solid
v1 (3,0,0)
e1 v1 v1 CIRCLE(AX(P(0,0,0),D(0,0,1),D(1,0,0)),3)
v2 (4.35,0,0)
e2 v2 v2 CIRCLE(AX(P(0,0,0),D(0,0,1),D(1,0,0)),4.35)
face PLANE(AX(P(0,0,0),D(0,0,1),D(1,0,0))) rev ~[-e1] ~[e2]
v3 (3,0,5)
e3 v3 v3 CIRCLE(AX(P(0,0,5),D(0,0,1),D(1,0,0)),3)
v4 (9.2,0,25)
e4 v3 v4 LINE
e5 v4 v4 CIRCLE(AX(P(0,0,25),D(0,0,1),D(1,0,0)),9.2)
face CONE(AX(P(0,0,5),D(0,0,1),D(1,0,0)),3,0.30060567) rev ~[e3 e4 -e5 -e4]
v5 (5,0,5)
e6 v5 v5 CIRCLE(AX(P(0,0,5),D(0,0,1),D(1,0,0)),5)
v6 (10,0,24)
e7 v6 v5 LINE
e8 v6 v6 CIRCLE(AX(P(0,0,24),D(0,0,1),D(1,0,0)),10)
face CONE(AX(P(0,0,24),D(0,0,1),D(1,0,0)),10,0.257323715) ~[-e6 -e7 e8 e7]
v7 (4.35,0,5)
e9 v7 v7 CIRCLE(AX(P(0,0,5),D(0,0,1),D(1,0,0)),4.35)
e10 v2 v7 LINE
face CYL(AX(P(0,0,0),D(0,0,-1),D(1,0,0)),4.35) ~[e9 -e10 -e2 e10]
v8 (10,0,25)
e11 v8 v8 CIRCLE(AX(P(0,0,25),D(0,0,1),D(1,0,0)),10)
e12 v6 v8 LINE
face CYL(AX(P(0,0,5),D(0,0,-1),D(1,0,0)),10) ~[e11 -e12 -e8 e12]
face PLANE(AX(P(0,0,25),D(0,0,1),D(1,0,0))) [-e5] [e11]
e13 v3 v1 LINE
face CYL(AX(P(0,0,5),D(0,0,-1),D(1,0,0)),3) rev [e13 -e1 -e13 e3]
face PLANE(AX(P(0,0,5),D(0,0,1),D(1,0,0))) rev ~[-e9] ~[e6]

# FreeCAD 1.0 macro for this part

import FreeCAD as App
import Part
import Sketcher

V = App.Vector
Q = App.Units.Quantity


def edges_at(feature, points):
    """Names of the edges that pass closest to the given points."""
    edges = feature.Shape.Edges
    near = lambda p: min(range(len(edges)), key=lambda i: edges[i].distToShape(Part.Vertex(*p))[0])
    return sorted({f"Edge{near(p) + 1}" for p in points})

doc = App.newDocument("Part")
body = doc.addObject("PartDesign::Body", "Body")

# Sketch on XY plane
sketch1 = doc.addObject("Sketcher::SketchObject", "Sketch")
body.addObject(sketch1)
sketch1.AttachmentSupport = (doc.XY_Plane, [""])
sketch1.MapMode = "FlatFace"
sketch1.addGeometry([
    Part.Circle(V(0, 0, 0), V(0, 0, 1), 4.3),
    Part.Circle(V(0, 0, 0), V(0, 0, 1), 3),
], False)
sketch1.addConstraint([
    Sketcher.Constraint("Coincident", 0, 3, -1, 1),
    Sketcher.Constraint("Coincident", 1, 3, -1, 1),
    Sketcher.Constraint("Diameter", 1, Q("6 mm")),
    Sketcher.Constraint("Diameter", 0, Q("8.7 mm")),
])
pad1 = doc.addObject("PartDesign::Pad", "Pad")
body.addObject(pad1)
pad1.Profile = sketch1
pad1.Length = 5

# Sketch on XY plane
sketch2 = doc.addObject("Sketcher::SketchObject", "Sketch001")
body.addObject(sketch2)
sketch2.AttachmentSupport = (doc.XY_Plane, [""])
sketch2.MapMode = "FlatFace"
sketch2.AttachmentOffset = App.Placement(V(0, 0, 5), App.Rotation())
sketch2.addGeometry([
    Part.Circle(V(0, 0, 0), V(0, 0, 1), 10),
    Part.Circle(V(0, 0, 0), V(0, 0, 1), 3),
], False)
sketch2.addConstraint([
    Sketcher.Constraint("Coincident", 0, 3, -1, 1),
    Sketcher.Constraint("Coincident", 1, 3, -1, 1),
    Sketcher.Constraint("Diameter", 0, Q("20 mm")),
    Sketcher.Constraint("Diameter", 1, Q("6 mm")),
])
pad2 = doc.addObject("PartDesign::Pad", "Pad001")
body.addObject(pad2)
pad2.Profile = sketch2
pad2.Length = 20
doc.recompute()

chamfer = doc.addObject("PartDesign::Chamfer", "Chamfer")
body.addObject(chamfer)
chamfer.Base = (pad2, edges_at(pad2, [(-3, 0, 25)]))
chamfer.ChamferType = "Two distances"
chamfer.Size = 20
chamfer.Size2 = 6.2
chamfer.FlipDirection = True
doc.recompute()

chamfer2 = doc.addObject("PartDesign::Chamfer", "Chamfer001")
body.addObject(chamfer2)
chamfer2.Base = (chamfer, edges_at(chamfer, [(-10, 0, 5)]))
chamfer2.ChamferType = "Two distances"
chamfer2.Size = 19
chamfer2.Size2 = 5

doc.recompute()
